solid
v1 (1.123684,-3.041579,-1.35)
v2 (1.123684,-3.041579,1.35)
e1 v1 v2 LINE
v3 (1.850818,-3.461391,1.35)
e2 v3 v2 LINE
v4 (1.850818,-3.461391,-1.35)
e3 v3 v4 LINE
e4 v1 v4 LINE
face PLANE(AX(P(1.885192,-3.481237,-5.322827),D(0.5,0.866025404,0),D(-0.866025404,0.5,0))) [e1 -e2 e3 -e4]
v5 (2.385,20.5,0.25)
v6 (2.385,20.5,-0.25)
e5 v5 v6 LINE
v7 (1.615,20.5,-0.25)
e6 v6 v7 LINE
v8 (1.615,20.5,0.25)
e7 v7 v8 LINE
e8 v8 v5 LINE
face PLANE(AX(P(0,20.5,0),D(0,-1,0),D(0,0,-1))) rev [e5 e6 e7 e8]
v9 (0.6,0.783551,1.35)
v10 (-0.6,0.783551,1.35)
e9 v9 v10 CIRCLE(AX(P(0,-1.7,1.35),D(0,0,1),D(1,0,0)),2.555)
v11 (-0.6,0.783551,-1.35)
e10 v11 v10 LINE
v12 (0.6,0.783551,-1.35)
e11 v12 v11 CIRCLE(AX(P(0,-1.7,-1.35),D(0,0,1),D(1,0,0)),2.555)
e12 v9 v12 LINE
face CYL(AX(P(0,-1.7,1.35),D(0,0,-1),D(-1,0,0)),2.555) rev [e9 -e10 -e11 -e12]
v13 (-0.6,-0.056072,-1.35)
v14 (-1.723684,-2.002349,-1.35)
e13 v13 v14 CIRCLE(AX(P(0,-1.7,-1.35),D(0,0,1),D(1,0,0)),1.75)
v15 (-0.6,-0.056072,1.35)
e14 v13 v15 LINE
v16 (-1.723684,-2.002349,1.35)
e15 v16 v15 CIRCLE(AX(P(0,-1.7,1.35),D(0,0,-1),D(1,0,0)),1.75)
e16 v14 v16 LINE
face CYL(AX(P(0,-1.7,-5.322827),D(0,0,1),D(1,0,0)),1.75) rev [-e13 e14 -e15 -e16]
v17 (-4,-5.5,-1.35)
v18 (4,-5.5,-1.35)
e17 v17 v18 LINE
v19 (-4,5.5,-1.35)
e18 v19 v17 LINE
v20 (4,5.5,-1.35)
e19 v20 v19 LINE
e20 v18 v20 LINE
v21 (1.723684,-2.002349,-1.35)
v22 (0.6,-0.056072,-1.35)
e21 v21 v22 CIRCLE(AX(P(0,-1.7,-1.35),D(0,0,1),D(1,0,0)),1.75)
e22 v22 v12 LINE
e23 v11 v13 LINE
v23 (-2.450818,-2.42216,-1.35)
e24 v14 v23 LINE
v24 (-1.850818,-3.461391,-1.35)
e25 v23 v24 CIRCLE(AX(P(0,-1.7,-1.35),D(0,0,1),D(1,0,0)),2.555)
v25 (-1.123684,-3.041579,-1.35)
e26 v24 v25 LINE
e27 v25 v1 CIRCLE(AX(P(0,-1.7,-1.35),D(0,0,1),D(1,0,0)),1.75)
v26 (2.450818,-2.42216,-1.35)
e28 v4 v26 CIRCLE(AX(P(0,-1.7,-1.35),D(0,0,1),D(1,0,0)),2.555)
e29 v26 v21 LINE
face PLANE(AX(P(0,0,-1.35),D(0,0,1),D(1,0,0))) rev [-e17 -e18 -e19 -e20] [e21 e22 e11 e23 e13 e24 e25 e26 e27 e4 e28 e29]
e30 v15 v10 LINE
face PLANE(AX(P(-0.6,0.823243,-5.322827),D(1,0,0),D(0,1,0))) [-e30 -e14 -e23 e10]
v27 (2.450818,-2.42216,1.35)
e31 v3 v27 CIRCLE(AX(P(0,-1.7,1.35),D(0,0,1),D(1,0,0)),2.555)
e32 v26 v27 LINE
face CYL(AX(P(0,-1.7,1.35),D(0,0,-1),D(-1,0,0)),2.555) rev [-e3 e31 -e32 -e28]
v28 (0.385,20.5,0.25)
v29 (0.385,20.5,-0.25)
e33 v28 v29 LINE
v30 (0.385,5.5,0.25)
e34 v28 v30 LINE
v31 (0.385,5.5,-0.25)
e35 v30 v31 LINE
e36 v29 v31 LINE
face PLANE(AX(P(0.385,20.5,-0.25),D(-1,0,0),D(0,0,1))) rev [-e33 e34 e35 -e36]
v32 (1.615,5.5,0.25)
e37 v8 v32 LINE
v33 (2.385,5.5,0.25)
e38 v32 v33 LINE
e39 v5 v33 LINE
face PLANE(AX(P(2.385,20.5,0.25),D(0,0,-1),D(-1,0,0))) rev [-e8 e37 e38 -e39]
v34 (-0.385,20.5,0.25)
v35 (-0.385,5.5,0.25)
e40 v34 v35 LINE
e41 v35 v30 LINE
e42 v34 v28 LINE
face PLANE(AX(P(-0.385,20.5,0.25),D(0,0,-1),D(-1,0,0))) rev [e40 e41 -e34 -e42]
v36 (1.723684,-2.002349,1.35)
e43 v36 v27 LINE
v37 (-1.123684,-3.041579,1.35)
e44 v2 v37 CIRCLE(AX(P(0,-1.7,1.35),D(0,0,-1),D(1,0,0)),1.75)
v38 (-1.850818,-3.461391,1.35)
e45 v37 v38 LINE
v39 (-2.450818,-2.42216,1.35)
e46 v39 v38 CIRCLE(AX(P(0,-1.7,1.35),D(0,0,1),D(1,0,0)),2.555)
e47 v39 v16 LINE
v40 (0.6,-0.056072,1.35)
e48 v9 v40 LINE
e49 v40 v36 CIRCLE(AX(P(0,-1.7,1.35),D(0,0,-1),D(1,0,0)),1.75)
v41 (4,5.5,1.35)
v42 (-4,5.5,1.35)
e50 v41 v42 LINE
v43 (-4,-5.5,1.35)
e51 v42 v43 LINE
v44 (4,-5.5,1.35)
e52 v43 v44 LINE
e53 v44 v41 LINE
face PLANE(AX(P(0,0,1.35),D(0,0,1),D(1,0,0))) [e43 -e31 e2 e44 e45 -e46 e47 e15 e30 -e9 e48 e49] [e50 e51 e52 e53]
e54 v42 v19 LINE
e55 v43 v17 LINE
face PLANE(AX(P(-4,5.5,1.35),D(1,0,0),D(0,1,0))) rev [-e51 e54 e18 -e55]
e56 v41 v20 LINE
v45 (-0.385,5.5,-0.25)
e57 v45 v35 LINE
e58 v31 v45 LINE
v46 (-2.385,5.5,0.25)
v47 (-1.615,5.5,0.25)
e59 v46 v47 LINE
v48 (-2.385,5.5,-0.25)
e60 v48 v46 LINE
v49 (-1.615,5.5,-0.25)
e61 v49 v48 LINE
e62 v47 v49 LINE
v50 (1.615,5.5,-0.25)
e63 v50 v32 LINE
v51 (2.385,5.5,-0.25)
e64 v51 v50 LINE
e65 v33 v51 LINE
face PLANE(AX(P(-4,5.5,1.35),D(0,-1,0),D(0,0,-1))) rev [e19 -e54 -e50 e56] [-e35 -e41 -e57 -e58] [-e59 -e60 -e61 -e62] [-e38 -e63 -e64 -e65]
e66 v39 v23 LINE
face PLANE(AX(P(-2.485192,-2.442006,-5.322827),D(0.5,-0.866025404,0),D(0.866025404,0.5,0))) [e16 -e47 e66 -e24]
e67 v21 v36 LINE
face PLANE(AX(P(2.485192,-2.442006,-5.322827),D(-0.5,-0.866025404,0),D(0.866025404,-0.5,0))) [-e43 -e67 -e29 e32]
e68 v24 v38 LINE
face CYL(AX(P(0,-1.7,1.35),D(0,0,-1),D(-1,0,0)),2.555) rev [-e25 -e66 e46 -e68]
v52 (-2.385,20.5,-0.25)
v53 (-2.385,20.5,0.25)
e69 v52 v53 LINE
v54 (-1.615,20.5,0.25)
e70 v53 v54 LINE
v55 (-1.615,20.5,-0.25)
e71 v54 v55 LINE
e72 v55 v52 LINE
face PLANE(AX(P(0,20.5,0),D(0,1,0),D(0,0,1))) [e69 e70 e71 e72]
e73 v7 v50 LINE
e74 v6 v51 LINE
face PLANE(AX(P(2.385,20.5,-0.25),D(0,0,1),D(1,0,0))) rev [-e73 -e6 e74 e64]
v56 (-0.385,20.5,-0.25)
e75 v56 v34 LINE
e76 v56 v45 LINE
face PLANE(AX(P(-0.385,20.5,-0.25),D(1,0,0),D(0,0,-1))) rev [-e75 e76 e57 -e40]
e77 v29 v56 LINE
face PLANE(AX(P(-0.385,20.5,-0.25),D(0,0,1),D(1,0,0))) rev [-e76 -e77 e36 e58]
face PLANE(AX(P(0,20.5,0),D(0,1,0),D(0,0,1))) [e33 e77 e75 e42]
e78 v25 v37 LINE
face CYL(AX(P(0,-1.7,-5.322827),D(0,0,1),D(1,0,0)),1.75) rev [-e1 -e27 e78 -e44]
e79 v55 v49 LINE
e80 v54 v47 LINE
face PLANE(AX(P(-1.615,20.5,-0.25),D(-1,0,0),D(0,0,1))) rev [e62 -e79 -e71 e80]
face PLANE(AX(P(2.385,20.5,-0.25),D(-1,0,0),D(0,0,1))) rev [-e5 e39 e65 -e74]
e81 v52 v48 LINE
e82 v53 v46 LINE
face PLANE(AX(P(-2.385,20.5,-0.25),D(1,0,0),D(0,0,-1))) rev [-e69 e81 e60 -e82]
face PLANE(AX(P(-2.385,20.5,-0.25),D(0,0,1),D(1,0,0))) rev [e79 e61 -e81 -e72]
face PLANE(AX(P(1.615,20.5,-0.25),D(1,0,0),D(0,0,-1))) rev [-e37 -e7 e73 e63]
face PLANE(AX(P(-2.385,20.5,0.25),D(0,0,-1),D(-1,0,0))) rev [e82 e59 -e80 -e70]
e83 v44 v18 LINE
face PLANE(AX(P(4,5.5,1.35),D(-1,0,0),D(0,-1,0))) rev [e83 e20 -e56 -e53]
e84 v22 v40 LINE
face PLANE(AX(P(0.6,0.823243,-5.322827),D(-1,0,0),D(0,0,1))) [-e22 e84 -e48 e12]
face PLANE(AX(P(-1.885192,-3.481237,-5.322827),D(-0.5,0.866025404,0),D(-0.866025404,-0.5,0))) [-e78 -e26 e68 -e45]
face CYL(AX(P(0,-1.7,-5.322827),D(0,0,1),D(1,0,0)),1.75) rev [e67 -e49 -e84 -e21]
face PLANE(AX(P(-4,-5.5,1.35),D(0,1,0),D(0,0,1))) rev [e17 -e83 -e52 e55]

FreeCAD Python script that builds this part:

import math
import FreeCAD as App
import Part
import Sketcher
Q = App.Units.Quantity

doc = App.newDocument("Part")
body = doc.addObject("PartDesign::Body", "Body")

sketch1 = body.newObject("Sketcher::SketchObject", "Sketch")
sketch1.AttachmentSupport = (doc.getObject("XY_Plane"), [""])
sketch1.MapMode = "FlatFace"
sketch1.addGeometry([
    Part.LineSegment(App.Vector(-4, 5.5, 0), App.Vector(-4, -5.5, 0)),
    Part.LineSegment(App.Vector(-4, -5.5, 0), App.Vector(4, -5.5, 0)),
    Part.LineSegment(App.Vector(4, -5.5, 0), App.Vector(4, 5.5, 0)),
    Part.LineSegment(App.Vector(4, 5.5, 0), App.Vector(-4, 5.5, 0)),
    Part.Circle(App.Vector(0, -1.7, 0), App.Vector(0, 0, 1), 2.6),
], False)
sketch1.addConstraint([
    Sketcher.Constraint("Coincident", 0, 2, 1, 1),
    Sketcher.Constraint("Coincident", 1, 2, 2, 1),
    Sketcher.Constraint("Coincident", 2, 2, 3, 1),
    Sketcher.Constraint("Coincident", 3, 2, 0, 1),
    Sketcher.Constraint("Vertical", 0),
    Sketcher.Constraint("Horizontal", 1),
    Sketcher.Constraint("Vertical", 2),
    Sketcher.Constraint("Horizontal", 3),
    Sketcher.Constraint("Symmetric", 0, 2, 2, 2, -1, 1),
    Sketcher.Constraint("PointOnObject", 4, 3, -2),
    Sketcher.Constraint("Diameter", 4, 5.11),
    Sketcher.Constraint("DistanceX", 1, 1, 1, 2, 8.0),
    Sketcher.Constraint("DistanceY", 0, 2, 0, 1, 11.0),
    Sketcher.Constraint("DistanceY", 4, 3, -1, 1, 1.7),
])
pad1 = body.newObject("PartDesign::Pad", "Pad")
pad1.Profile = sketch1
pad1.Length = 2.7
pad1.Midplane = True

sketch2 = body.newObject("Sketcher::SketchObject", "Sketch001")
sketch2.AttachmentSupport = (doc.getObject("XZ_Plane"), [""])
sketch2.MapMode = "FlatFace"
sketch2.AttachmentOffset = App.Placement(App.Vector(0, 0, -5.5), App.Rotation())
sketch2.addGeometry([
    Part.LineSegment(App.Vector(-0.4, -0.2, 0), App.Vector(-0.4, 0.2, 0)),
    Part.LineSegment(App.Vector(-0.4, 0.2, 0), App.Vector(0.4, 0.2, 0)),
    Part.LineSegment(App.Vector(0.4, 0.2, 0), App.Vector(0.4, -0.2, 0)),
    Part.LineSegment(App.Vector(0.4, -0.2, 0), App.Vector(-0.4, -0.2, 0)),
    Part.LineSegment(App.Vector(-2.4, -0.2, 0), App.Vector(-2.4, 0.2, 0)),
    Part.LineSegment(App.Vector(-2.4, 0.2, 0), App.Vector(-1.6, 0.2, 0)),
    Part.LineSegment(App.Vector(-1.6, 0.2, 0), App.Vector(-1.6, -0.2, 0)),
    Part.LineSegment(App.Vector(-1.6, -0.2, 0), App.Vector(-2.4, -0.2, 0)),
    Part.LineSegment(App.Vector(1.6, -0.2, 0), App.Vector(1.6, 0.2, 0)),
    Part.LineSegment(App.Vector(1.6, 0.2, 0), App.Vector(2.4, 0.2, 0)),
    Part.LineSegment(App.Vector(2.4, 0.2, 0), App.Vector(2.4, -0.2, 0)),
    Part.LineSegment(App.Vector(2.4, -0.2, 0), App.Vector(1.6, -0.2, 0)),
], False)
sketch2.addConstraint([
    Sketcher.Constraint("Coincident", 0, 2, 1, 1),
    Sketcher.Constraint("Coincident", 1, 2, 2, 1),
    Sketcher.Constraint("Coincident", 2, 2, 3, 1),
    Sketcher.Constraint("Coincident", 3, 2, 0, 1),
    Sketcher.Constraint("Coincident", 4, 2, 5, 1),
    Sketcher.Constraint("Coincident", 5, 2, 6, 1),
    Sketcher.Constraint("Coincident", 6, 2, 7, 1),
    Sketcher.Constraint("Coincident", 7, 2, 4, 1),
    Sketcher.Constraint("Coincident", 8, 2, 9, 1),
    Sketcher.Constraint("Coincident", 9, 2, 10, 1),
    Sketcher.Constraint("Coincident", 10, 2, 11, 1),
    Sketcher.Constraint("Coincident", 11, 2, 8, 1),
    Sketcher.Constraint("Vertical", 0),
    Sketcher.Constraint("Horizontal", 1),
    Sketcher.Constraint("Vertical", 2),
    Sketcher.Constraint("Horizontal", 3),
    Sketcher.Constraint("Vertical", 4),
    Sketcher.Constraint("Horizontal", 5),
    Sketcher.Constraint("Vertical", 6),
    Sketcher.Constraint("Horizontal", 7),
    Sketcher.Constraint("Vertical", 8),
    Sketcher.Constraint("Horizontal", 9),
    Sketcher.Constraint("Vertical", 10),
    Sketcher.Constraint("Horizontal", 11),
    Sketcher.Constraint("Symmetric", 0, 2, 2, 2, -1, 1),
    Sketcher.Constraint("Symmetric", 6, 2, 8, 2, -1, 1),
    Sketcher.Constraint("Symmetric", 4, 2, 10, 2, -1, 1),
    Sketcher.Constraint("Horizontal", 1, 2, 4, 2),
    Sketcher.Constraint("Horizontal", 3, 2, 6, 2),
    Sketcher.Constraint("Equal", 3, 5),
    Sketcher.Constraint("DistanceY", 0, 1, 0, 2, 0.5),
    Sketcher.Constraint("DistanceX", 4, 2, 0, 2, 2.0),
    Sketcher.Constraint("DistanceX", 1, 1, 1, 2, 0.77),
])
pad2 = body.newObject("PartDesign::Pad", "Pad001")
pad2.Profile = sketch2
pad2.Length = 15
pad2.Reversed = True

sketch3 = body.newObject("Sketcher::SketchObject", "Sketch002")
sketch3.AttachmentSupport = (doc.getObject("XY_Plane"), [""])
sketch3.MapMode = "FlatFace"
sketch3.AttachmentOffset = App.Placement(App.Vector(0, 0, 1.35), App.Rotation())
sketch3.addGeometry([
    Part.LineSegment(App.Vector(-0.6, -0.1, 0), App.Vector(-0.6, 0.8, 0)),
    Part.ArcOfCircle(Part.Circle(App.Vector(0, -1.7, 0), App.Vector(0, 0, 1), 2.6), math.radians(103), math.radians(197)),
    Part.LineSegment(App.Vector(-2.5, -2.4, 0), App.Vector(-1.7, -2, 0)),
    Part.ArcOfCircle(Part.Circle(App.Vector(0, -1.7, 0), App.Vector(0, 0, 1), 1.7), math.radians(110), math.radians(190)),
    Part.LineSegment(App.Vector(0.6, 0.8, 0), App.Vector(0.6, -0.1, 0)),
    Part.ArcOfCircle(Part.Circle(App.Vector(0, -1.7, 0), App.Vector(0, 0, 1), 1.7), math.radians(-10), math.radians(70)),
    Part.LineSegment(App.Vector(1.7, -2, 0), App.Vector(2.5, -2.4, 0)),
    Part.ArcOfCircle(Part.Circle(App.Vector(0, -1.7, 0), App.Vector(0, 0, 1), 2.6), math.radians(-17), math.radians(77)),
    Part.LineSegment(App.Vector(1.9, -3.5, 0), App.Vector(1.1, -3, 0)),
    Part.ArcOfCircle(Part.Circle(App.Vector(0, -1.7, 0), App.Vector(0, 0, 1), 1.7), math.radians(-130), math.radians(-50)),
    Part.LineSegment(App.Vector(-1.1, -3, 0), App.Vector(-1.9, -3.5, 0)),
    Part.ArcOfCircle(Part.Circle(App.Vector(0, -1.7, 0), App.Vector(0, 0, 1), 2.6), math.radians(-137), math.radians(-43)),
], False)
sketch3.addConstraint([
    Sketcher.Constraint("Coincident", 0, 2, 1, 1),
    Sketcher.Constraint("Coincident", 1, 2, 2, 1),
    Sketcher.Constraint("Coincident", 2, 2, 3, 2),
    Sketcher.Constraint("Coincident", 3, 1, 0, 1),
    Sketcher.Constraint("Coincident", 4, 2, 5, 2),
    Sketcher.Constraint("Coincident", 5, 1, 6, 1),
    Sketcher.Constraint("Coincident", 6, 2, 7, 1),
    Sketcher.Constraint("Coincident", 7, 2, 4, 1),
    Sketcher.Constraint("Coincident", 8, 2, 9, 2),
    Sketcher.Constraint("Coincident", 9, 1, 10, 1),
    Sketcher.Constraint("Coincident", 10, 2, 11, 1),
    Sketcher.Constraint("Coincident", 11, 2, 8, 1),
    Sketcher.Constraint("Vertical", 0),
    Sketcher.Constraint("Vertical", 4),
    Sketcher.Constraint("Coincident", 3, 3, 1, 3),
    Sketcher.Constraint("Coincident", 5, 3, 1, 3),
    Sketcher.Constraint("Coincident", 7, 3, 1, 3),
    Sketcher.Constraint("Coincident", 9, 3, 1, 3),
    Sketcher.Constraint("Coincident", 11, 3, 1, 3),
    Sketcher.Constraint("Equal", 3, 5),
    Sketcher.Constraint("Equal", 1, 7),
    Sketcher.Constraint("Equal", 5, 9),
    Sketcher.Constraint("Equal", 7, 11),
    Sketcher.Constraint("Symmetric", 3, 1, 4, 2, -2),
    Sketcher.Constraint("Parallel", 6, 8),
    Sketcher.Constraint("Parallel", 2, 10),
    Sketcher.Constraint("Horizontal", 2, 2, 5, 1),
    Sketcher.Constraint("Horizontal", 1, 2, 6, 2),
    Sketcher.Constraint("Horizontal", 8, 2, 9, 1),
    Sketcher.Constraint("Equal", 6, 8),
    Sketcher.Constraint("Angle", 2, Q("30 deg")),
    Sketcher.Constraint("Radius", 3, 1.75),
    Sketcher.Constraint("DistanceY", 1, 3, -1, 1, 1.7),
    Sketcher.Constraint("DistanceX", 0, 2, -1, 1, 0.6),
    Sketcher.Constraint("Radius", 1, 2.593599),
    Sketcher.Constraint("DistanceX", 8, 2, 5, 1, 0.6),
])
pad3 = body.newObject("PartDesign::Pad", "Pad002")
pad3.Profile = sketch3
pad3.Length = 2.7
pad3.Reversed = True

doc.recompute()
